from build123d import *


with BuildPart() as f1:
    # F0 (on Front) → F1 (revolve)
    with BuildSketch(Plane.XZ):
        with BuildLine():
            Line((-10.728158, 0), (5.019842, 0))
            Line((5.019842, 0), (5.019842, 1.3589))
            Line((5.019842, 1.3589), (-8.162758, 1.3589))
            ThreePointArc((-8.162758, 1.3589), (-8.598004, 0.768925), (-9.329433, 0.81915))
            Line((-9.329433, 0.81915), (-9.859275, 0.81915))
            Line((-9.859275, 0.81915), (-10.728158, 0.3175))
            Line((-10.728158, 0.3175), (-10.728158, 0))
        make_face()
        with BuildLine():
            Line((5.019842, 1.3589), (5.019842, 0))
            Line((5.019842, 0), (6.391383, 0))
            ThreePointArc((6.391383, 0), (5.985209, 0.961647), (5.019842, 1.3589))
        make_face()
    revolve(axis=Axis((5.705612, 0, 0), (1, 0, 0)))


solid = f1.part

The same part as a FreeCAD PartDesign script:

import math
import FreeCAD as App
import Part
import Sketcher

V = App.Vector
Q = App.Units.Quantity

doc = App.newDocument("Part")
body = doc.addObject("PartDesign::Body", "Body")

# Sketch on XZ plane
sketch1 = doc.addObject("Sketcher::SketchObject", "Sketch")
body.addObject(sketch1)
sketch1.AttachmentSupport = (doc.XZ_Plane, [""])
sketch1.MapMode = "FlatFace"
sketch1.addGeometry([
    Part.LineSegment(V(-10.728158, 0, 0), V(6.391383, 0, 0)),  # 0
    Part.ArcOfCircle(Part.Circle(V(5.019841, -0.012701, 0), V(0, 0, 1), 1.371601), math.radians(0.530548), math.radians(89.999968)),  # 1
    Part.LineSegment(V(5.019842, 1.3589, 0), V(-8.162758, 1.3589, 0)),  # 2
    Part.ArcOfCircle(Part.Circle(V(-8.917955, 1.4605, 0), V(0, 0, 1), 0.762), math.radians(-122.683488), math.radians(-7.662256)),  # 3
    Part.LineSegment(V(-9.329433, 0.81915, 0), V(-9.859275, 0.81915, 0)),  # 4
    Part.LineSegment(V(-9.859275, 0.81915, 0), V(-10.728158, 0.3175, 0)),  # 5
    Part.LineSegment(V(-10.728158, 0.3175, 0), V(-10.728158, 0, 0)),  # 6
], False)
sketch1.addConstraint([
    Sketcher.Constraint("Coincident", 0, 2, 1, 1),
    Sketcher.Constraint("Tangent", 1, 2, 2, 1),
    Sketcher.Constraint("Coincident", 2, 2, 3, 2),
    Sketcher.Constraint("Coincident", 3, 1, 4, 1),
    Sketcher.Constraint("Coincident", 4, 2, 5, 1),
    Sketcher.Constraint("Coincident", 5, 2, 6, 1),
    Sketcher.Constraint("Coincident", 6, 2, 0, 1),
    Sketcher.Constraint("Horizontal", 0),
    Sketcher.Constraint("Horizontal", 2),
    Sketcher.Constraint("Horizontal", 4),
    Sketcher.Constraint("Vertical", 6),
    Sketcher.Constraint("PointOnObject", 0, 2, -1),
    Sketcher.Constraint("Radius", 3, Q("0.03 in")),
    Sketcher.Constraint("Angle", 5, Q("-149.999992 deg")),
    Sketcher.Constraint("Radius", 1, Q("0.054 in")),
    Sketcher.Constraint("DistanceX", 2, 2, 2, 1, Q("0.519 in")),
    Sketcher.Constraint("DistanceX", 5, 2, 1, 3, Q("0.62 in")),
    Sketcher.Constraint("DistanceY", 6, 2, 6, 1, Q("0.0125 in")),
    Sketcher.Constraint("DistanceY", 1, 3, 3, 3, Q("0.058 in")),
    Sketcher.Constraint("DistanceY", 5, 2, 3, 3, Q("0.045 in")),
    Sketcher.Constraint("Distance", 5, Q("0.0395 in")),
    Sketcher.Constraint("DistanceX", -1, 1, 1, 3, Q("5.019841 mm")),
])
revolution = doc.addObject("PartDesign::Revolution", "Revolution")
body.addObject(revolution)
revolution.Profile = sketch1
revolution.ReferenceAxis = (sketch1, ["H_Axis"])
revolution.Angle = 360

doc.recompute()
